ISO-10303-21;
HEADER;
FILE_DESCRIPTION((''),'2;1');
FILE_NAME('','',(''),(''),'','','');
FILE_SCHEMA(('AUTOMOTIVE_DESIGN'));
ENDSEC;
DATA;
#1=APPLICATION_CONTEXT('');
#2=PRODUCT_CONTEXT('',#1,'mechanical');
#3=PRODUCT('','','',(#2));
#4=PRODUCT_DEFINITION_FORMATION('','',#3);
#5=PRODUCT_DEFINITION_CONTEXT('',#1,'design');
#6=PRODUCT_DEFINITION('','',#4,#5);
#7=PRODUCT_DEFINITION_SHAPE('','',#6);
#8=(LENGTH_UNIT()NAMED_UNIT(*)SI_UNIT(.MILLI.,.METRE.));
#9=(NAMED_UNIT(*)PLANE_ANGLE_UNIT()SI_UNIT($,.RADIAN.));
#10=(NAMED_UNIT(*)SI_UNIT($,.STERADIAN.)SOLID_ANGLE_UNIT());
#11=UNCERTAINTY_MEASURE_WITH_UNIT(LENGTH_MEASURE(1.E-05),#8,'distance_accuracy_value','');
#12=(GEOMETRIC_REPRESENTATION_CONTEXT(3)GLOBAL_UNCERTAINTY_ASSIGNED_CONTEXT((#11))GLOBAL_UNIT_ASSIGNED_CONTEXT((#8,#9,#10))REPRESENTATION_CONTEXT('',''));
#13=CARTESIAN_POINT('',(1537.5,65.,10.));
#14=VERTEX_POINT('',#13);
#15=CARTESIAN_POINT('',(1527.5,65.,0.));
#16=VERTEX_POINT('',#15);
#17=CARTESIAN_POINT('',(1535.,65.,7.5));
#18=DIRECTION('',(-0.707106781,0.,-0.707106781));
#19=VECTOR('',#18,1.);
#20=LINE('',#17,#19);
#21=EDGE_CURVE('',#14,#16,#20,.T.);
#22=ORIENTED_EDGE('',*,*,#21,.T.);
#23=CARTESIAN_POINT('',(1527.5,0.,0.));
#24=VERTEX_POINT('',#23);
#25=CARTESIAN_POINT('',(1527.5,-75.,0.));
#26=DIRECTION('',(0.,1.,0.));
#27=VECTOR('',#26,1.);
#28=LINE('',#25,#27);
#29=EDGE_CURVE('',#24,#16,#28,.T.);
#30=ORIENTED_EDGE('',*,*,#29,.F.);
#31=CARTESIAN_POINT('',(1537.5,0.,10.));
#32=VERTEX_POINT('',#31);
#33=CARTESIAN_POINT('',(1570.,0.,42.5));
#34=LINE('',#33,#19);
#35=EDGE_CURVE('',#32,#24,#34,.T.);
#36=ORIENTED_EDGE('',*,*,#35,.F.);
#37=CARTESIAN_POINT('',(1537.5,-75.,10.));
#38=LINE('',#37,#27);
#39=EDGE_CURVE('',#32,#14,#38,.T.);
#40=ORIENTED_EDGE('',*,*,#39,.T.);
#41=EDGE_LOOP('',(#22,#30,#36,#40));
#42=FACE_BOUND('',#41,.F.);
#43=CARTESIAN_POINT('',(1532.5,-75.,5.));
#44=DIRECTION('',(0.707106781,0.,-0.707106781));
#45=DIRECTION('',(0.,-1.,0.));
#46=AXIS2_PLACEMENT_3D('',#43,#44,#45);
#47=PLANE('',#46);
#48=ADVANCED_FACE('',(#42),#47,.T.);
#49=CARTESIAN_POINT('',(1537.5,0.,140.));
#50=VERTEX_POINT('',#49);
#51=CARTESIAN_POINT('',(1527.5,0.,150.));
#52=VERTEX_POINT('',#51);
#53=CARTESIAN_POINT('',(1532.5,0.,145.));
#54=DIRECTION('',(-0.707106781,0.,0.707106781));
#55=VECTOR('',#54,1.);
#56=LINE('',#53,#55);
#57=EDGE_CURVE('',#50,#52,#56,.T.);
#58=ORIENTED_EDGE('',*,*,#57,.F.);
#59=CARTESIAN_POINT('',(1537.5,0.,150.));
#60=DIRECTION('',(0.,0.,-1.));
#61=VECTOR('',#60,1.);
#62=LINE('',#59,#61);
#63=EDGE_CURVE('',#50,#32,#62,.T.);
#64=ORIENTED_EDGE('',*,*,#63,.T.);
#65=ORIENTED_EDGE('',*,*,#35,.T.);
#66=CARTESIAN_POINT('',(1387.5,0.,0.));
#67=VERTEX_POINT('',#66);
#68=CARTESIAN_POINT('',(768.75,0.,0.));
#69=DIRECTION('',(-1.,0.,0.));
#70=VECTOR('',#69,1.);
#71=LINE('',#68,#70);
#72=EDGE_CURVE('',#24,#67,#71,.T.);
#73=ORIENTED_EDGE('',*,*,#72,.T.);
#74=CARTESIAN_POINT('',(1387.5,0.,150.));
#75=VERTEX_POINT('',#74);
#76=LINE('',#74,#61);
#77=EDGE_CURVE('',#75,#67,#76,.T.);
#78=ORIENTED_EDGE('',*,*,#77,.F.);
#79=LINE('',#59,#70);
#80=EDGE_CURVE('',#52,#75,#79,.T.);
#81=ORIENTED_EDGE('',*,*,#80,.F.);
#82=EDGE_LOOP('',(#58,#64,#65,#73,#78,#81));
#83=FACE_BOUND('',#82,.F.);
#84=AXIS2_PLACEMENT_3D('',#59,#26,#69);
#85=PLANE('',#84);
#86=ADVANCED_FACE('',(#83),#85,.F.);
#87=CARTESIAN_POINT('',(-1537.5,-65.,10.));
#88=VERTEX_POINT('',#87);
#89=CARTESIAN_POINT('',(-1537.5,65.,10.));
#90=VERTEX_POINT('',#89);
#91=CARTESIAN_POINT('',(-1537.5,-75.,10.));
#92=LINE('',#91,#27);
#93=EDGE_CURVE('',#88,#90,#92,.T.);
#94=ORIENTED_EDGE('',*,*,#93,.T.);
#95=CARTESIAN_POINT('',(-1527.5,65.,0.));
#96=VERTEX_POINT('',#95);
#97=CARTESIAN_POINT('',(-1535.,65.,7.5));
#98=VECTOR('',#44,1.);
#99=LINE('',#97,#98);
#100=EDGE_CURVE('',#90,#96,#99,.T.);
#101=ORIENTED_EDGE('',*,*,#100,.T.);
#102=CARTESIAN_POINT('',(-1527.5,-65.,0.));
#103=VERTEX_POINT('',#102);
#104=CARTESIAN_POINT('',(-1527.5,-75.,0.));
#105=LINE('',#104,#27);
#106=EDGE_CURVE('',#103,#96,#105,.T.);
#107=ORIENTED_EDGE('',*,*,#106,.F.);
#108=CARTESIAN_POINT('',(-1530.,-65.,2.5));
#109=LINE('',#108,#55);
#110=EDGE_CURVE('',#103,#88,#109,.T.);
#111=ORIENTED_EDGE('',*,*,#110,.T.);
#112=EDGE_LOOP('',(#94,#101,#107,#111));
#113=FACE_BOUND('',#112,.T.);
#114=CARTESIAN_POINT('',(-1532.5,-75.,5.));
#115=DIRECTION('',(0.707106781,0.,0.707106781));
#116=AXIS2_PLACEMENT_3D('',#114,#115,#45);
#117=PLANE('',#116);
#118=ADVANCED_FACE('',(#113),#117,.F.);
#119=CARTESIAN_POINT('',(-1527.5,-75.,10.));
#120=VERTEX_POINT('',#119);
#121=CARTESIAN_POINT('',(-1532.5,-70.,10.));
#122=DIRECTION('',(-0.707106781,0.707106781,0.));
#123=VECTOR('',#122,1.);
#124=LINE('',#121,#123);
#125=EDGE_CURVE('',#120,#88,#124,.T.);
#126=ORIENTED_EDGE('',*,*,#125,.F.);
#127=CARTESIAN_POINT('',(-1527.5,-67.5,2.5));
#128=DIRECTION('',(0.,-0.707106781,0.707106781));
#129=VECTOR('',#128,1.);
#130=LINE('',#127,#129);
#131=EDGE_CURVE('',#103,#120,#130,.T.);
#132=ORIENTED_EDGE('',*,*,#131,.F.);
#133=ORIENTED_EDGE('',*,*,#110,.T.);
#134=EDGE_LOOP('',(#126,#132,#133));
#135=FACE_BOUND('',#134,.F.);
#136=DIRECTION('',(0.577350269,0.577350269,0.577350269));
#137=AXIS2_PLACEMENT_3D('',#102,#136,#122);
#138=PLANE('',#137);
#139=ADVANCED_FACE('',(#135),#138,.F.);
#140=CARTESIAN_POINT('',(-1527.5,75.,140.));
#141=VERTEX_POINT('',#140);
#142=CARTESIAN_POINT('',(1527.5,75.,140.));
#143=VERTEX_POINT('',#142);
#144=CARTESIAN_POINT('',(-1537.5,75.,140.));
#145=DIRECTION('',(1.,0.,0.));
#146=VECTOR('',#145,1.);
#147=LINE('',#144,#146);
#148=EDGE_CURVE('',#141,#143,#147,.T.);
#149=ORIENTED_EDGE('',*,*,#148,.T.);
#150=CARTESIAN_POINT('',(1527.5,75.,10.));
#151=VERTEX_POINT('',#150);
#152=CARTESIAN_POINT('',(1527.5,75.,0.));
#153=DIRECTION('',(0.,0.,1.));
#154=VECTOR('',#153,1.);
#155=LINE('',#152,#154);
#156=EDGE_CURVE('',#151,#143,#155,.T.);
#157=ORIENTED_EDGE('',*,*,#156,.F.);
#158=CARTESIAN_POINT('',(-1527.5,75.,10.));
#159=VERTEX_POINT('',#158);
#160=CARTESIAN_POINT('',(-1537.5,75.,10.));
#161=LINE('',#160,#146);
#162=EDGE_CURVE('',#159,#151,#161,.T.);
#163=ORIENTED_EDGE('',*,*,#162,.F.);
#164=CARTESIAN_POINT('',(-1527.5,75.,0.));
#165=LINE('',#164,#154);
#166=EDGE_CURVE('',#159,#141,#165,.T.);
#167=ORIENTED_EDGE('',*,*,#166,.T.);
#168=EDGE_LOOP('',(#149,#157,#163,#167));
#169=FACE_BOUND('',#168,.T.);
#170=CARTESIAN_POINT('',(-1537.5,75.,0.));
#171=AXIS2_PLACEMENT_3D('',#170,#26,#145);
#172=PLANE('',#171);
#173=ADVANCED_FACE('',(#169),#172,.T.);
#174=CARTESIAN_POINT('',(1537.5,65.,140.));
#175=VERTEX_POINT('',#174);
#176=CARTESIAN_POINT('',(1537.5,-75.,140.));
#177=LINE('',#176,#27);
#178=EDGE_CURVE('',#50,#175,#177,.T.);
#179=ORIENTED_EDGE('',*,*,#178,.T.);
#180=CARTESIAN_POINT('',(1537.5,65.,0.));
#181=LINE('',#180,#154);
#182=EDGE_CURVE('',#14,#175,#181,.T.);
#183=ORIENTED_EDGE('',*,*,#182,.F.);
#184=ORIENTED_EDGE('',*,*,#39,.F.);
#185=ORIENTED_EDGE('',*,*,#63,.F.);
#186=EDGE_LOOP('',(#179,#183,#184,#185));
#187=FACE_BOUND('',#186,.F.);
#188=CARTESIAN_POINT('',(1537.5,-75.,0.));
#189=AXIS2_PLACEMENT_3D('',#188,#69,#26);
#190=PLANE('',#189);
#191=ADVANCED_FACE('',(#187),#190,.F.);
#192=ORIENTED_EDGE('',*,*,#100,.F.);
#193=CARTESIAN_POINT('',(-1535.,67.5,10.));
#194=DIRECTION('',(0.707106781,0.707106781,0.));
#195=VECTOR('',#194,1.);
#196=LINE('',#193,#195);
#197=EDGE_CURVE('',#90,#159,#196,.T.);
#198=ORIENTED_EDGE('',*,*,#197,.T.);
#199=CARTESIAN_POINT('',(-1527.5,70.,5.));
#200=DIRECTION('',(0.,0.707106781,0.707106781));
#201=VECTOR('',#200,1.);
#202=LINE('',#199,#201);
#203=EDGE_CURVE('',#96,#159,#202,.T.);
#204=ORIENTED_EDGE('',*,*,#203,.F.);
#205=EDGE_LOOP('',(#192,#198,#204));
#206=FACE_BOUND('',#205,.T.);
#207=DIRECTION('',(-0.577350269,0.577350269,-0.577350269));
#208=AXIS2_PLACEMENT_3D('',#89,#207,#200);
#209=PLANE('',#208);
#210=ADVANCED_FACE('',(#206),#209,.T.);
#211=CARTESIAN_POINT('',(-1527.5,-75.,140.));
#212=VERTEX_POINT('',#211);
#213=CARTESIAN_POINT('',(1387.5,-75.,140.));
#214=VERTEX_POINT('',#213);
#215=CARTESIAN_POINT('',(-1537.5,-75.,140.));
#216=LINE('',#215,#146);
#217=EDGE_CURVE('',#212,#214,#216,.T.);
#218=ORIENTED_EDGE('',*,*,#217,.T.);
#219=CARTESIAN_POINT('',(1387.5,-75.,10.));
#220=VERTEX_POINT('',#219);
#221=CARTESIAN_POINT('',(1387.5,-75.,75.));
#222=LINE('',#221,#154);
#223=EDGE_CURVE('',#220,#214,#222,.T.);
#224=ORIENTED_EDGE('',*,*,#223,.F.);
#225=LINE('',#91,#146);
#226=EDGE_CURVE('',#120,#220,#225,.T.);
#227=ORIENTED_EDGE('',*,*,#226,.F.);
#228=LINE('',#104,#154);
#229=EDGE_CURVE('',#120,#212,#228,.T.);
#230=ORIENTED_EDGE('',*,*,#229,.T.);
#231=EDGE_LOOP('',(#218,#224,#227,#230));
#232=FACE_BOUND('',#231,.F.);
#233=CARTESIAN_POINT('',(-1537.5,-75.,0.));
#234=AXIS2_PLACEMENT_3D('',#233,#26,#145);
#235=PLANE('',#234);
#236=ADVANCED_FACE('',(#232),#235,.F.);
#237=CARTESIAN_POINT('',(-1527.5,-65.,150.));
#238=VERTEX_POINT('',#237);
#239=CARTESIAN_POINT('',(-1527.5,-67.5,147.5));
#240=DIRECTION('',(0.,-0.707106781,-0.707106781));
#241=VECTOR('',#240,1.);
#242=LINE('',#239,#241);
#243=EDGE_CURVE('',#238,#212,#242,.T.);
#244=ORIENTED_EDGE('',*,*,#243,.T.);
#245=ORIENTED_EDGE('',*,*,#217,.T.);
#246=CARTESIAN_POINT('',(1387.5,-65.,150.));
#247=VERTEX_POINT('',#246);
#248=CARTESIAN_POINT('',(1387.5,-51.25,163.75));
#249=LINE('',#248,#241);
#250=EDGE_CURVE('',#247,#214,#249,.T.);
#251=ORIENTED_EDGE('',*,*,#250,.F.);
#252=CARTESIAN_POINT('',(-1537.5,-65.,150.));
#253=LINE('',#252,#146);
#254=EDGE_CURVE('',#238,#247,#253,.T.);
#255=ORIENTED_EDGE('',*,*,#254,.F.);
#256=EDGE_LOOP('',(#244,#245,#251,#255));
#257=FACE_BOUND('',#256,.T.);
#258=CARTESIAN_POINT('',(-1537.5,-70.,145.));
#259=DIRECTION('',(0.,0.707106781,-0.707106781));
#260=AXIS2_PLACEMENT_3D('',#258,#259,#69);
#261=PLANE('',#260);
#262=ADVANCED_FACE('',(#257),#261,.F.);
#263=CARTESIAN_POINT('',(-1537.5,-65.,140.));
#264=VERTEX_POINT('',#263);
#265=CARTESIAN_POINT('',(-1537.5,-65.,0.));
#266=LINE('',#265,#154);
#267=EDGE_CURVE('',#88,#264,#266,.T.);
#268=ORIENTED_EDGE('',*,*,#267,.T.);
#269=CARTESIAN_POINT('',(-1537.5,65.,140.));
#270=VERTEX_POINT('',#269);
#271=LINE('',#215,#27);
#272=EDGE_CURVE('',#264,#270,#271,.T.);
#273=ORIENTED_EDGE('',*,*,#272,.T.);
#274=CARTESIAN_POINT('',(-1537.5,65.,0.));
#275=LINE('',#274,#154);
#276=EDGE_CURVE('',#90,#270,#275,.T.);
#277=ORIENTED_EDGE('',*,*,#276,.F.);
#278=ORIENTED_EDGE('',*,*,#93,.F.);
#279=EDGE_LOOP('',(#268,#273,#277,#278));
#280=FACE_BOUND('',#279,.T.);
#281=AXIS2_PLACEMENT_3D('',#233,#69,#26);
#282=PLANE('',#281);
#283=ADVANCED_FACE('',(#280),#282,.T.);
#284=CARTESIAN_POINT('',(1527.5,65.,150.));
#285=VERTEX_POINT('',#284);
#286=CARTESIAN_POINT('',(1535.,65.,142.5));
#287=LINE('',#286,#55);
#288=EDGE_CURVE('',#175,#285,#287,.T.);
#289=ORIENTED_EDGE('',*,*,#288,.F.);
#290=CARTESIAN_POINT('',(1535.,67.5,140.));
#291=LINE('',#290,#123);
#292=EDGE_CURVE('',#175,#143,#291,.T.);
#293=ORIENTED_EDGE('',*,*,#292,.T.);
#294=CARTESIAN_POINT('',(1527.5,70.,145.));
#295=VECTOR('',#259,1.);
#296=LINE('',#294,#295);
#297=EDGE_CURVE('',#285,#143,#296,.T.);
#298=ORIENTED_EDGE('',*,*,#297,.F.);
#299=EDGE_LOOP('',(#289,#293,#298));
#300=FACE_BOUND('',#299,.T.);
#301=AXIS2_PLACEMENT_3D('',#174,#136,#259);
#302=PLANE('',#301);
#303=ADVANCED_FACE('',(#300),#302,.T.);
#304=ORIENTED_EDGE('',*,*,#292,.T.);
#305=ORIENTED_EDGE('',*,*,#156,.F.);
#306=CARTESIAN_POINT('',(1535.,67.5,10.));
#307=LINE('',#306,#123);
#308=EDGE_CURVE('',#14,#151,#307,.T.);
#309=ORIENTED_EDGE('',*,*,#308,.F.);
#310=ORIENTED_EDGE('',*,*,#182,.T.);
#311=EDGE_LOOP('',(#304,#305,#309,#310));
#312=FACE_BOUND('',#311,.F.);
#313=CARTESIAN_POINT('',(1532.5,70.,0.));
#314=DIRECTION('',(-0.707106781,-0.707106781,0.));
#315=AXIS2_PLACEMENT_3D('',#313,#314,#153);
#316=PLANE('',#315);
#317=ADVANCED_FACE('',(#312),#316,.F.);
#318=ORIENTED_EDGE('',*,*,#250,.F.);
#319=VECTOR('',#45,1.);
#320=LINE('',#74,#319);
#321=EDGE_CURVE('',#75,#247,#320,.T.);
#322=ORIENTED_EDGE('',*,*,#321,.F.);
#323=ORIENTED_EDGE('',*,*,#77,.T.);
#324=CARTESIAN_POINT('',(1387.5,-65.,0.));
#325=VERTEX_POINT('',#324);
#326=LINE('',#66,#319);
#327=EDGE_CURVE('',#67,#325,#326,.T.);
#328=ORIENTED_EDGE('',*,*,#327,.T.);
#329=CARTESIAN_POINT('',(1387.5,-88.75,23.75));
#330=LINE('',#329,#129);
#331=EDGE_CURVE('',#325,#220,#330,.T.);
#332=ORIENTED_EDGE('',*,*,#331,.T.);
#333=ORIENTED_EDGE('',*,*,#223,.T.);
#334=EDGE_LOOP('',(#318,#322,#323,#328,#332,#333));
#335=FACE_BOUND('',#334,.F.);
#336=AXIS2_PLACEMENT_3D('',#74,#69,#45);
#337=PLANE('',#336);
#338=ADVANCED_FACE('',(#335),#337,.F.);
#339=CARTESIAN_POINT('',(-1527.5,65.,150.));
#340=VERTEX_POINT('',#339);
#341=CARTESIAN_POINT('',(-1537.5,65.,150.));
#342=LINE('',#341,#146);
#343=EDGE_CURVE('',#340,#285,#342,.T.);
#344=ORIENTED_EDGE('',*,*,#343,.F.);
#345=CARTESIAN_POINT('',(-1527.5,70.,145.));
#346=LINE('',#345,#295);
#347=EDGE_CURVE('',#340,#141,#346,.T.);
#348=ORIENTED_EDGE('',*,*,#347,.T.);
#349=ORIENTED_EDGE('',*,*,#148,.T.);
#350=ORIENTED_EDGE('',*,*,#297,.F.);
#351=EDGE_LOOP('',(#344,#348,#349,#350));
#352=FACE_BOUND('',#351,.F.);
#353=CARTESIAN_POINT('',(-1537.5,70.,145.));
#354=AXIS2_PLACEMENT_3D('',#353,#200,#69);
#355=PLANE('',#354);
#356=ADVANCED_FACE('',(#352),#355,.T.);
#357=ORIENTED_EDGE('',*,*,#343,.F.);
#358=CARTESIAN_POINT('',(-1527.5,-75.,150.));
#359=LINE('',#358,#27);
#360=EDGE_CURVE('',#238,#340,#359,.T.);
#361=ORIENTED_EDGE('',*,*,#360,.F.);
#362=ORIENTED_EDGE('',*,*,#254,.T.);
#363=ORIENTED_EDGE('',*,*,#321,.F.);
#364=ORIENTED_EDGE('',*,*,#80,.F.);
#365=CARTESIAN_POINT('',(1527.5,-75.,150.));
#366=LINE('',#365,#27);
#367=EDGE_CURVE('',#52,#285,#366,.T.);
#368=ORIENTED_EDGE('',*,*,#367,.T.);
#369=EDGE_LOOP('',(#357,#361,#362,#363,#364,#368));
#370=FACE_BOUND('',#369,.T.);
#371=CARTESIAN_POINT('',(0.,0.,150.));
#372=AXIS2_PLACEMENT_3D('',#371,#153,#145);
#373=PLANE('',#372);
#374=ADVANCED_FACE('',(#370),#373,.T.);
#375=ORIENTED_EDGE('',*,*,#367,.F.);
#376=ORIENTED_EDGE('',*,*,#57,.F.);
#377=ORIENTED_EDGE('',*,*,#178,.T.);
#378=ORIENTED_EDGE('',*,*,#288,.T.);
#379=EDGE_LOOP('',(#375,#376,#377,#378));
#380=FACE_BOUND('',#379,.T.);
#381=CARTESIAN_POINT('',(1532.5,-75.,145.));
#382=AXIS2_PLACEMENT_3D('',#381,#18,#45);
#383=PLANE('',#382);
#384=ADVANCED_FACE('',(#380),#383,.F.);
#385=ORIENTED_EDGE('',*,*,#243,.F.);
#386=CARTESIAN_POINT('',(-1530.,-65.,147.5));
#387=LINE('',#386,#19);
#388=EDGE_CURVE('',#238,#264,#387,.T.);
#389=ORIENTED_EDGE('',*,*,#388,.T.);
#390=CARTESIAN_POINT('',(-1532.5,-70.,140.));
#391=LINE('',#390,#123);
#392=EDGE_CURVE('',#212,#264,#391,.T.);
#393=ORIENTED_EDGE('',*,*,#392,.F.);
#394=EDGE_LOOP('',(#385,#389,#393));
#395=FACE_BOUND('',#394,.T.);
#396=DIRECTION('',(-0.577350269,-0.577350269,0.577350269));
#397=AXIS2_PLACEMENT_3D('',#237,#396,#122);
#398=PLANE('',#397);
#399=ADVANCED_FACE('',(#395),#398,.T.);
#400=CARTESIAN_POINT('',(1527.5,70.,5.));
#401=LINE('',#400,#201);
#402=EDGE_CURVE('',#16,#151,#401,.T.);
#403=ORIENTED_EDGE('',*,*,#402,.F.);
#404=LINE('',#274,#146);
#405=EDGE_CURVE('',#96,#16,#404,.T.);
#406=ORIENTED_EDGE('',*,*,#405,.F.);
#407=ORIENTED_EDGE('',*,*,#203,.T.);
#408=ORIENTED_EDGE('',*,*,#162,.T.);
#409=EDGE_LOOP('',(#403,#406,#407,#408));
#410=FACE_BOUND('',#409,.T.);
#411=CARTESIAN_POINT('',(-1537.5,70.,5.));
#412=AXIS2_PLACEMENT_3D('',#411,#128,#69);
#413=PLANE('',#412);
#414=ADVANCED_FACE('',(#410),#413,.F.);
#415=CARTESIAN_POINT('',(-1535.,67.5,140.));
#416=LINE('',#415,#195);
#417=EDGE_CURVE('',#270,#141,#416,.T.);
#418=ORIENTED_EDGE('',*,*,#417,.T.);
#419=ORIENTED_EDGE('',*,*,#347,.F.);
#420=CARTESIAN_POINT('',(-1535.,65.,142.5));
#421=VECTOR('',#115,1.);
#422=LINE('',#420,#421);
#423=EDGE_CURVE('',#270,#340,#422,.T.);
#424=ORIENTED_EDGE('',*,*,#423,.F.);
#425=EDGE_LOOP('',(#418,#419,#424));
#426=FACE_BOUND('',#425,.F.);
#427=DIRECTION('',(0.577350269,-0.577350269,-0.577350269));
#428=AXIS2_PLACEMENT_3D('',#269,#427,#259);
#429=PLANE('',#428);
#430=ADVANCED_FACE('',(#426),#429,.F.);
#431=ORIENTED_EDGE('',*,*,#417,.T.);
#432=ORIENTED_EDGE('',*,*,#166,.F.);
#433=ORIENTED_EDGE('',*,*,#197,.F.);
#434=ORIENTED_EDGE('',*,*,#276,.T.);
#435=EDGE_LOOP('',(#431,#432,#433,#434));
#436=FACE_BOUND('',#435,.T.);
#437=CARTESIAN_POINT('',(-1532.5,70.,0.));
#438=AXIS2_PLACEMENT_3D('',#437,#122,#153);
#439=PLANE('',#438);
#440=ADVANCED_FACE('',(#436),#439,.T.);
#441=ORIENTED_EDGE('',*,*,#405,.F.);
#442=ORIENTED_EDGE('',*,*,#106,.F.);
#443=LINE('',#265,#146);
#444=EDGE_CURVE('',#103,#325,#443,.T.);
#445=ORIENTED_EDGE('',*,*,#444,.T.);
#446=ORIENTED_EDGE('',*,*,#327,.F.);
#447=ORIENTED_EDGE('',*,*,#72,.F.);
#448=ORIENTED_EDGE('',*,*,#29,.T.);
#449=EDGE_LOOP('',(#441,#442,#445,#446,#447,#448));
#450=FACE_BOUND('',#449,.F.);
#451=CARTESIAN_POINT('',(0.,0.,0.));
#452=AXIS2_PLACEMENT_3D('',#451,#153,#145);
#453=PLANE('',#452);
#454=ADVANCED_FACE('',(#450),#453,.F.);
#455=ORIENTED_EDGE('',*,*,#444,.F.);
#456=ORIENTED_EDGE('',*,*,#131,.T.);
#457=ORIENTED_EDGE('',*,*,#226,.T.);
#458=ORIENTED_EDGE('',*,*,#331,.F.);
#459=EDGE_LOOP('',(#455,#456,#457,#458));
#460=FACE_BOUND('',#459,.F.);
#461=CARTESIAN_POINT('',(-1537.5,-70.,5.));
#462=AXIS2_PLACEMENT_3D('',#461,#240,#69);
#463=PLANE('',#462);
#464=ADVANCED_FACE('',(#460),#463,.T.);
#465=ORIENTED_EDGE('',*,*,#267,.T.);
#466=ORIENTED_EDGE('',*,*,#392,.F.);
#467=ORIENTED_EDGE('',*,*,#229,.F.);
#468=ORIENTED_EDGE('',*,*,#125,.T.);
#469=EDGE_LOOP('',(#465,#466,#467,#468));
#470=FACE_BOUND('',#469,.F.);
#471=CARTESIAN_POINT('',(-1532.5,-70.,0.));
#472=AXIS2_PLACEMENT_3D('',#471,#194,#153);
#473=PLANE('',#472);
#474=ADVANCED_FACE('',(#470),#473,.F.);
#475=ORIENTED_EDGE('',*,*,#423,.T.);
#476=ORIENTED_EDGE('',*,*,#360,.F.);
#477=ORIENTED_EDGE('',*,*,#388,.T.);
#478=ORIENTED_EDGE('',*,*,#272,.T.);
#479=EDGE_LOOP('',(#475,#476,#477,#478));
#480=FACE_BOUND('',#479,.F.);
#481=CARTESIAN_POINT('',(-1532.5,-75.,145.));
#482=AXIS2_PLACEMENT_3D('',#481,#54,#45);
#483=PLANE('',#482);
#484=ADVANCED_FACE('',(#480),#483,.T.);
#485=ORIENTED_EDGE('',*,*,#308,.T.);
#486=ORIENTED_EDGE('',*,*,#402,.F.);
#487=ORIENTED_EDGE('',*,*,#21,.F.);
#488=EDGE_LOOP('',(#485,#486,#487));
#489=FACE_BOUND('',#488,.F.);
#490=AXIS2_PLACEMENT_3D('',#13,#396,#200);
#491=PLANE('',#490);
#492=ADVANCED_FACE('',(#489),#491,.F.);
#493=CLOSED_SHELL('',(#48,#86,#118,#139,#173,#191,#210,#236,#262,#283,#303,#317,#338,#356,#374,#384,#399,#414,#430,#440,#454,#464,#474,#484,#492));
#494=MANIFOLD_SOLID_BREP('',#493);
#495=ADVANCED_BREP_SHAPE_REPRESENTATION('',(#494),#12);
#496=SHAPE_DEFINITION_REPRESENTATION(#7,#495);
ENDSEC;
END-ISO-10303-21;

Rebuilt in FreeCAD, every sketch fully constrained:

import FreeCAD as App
import Part
import Sketcher

V = App.Vector


def add_polygon(sketch, points):
    """Adds a closed chain of lines whose ends are joined by coincident constraints."""
    first, n = sketch.GeometryCount, len(points)
    for a, b in zip(points, points[1:] + points[:1]):
        sketch.addGeometry(Part.LineSegment(App.Vector(*a, 0), App.Vector(*b, 0)), False)
    for i in range(n):
        sketch.addConstraint(Sketcher.Constraint("Coincident", first + i, 2, first + (i + 1) % n, 1))

doc = App.newDocument("Part")
params = doc.addObject("Spreadsheet::Sheet", "Params")
for row, (alias, value) in enumerate([
    ("sketch1_width", "3075 mm"),
    ("sketch1_height", "150 mm"),
    ("pad1_length", "150 mm"),
    ("chamfer_size", "10 mm"),
    ("sketch2_width", "150 mm"),
], start=1):
    params.set(f"A{row}", alias)
    params.set(f"B{row}", "=" + value)
    params.setAlias(f"B{row}", alias)

body = doc.addObject("PartDesign::Body", "Body")

sketch1 = doc.addObject("Sketcher::SketchObject", "Sketch")
body.addObject(sketch1)
sketch1.AttachmentSupport = (doc.XY_Plane, [""])
sketch1.MapMode = "FlatFace"
add_polygon(sketch1, [(-1538, 75), (-1538, -75), (1538, -75), (1538, 75)])
sketch1.addConstraint(Sketcher.Constraint("Vertical", 0))
sketch1.addConstraint(Sketcher.Constraint("Horizontal", 1))
sketch1.addConstraint(Sketcher.Constraint("Vertical", 2))
sketch1.addConstraint(Sketcher.Constraint("Horizontal", 3))
sketch1.addConstraint(Sketcher.Constraint("Symmetric", 0, 2, 2, 2, -1, 1))
sketch1.addConstraint(Sketcher.Constraint("DistanceX", 1, 1, 1, 2, 3075.0))
sketch1.addConstraint(Sketcher.Constraint("DistanceY", 0, 2, 0, 1, 150.0))
sketch1.setExpression("Constraints[9]", "Params.sketch1_width")
sketch1.setExpression("Constraints[10]", "Params.sketch1_height")
pad1 = doc.addObject("PartDesign::Pad", "Pad")
body.addObject(pad1)
pad1.Profile = sketch1
pad1.setExpression("Length", "Params.pad1_length")
doc.recompute()

chamfer = doc.addObject("PartDesign::Chamfer", "Chamfer")
body.addObject(chamfer)
chamfer.Base = (pad1, ["Edge1"])
chamfer.UseAllEdges = True
chamfer.setExpression("Size", "Params.chamfer_size")

sketch2 = doc.addObject("Sketcher::SketchObject", "Sketch001")
body.addObject(sketch2)
sketch2.AttachmentSupport = (doc.XY_Plane, [""])
sketch2.MapMode = "FlatFace"
sketch2.AttachmentOffset = App.Placement(V(0, 0, 150), App.Rotation())
add_polygon(sketch2, [(1538, 0), (1388, 0), (1388, -80), (1538, -80)])
sketch2.addConstraint(Sketcher.Constraint("Horizontal", 0))
sketch2.addConstraint(Sketcher.Constraint("Vertical", 1))
sketch2.addConstraint(Sketcher.Constraint("Horizontal", 2))
sketch2.addConstraint(Sketcher.Constraint("Vertical", 3))
sketch2.addConstraint(Sketcher.Constraint("PointOnObject", 0, 2, -1))
sketch2.addConstraint(Sketcher.Constraint("DistanceX", 0, 2, 0, 1, 150.0))
sketch2.addConstraint(Sketcher.Constraint("DistanceX", -1, 1, 0, 2, 1387.5))
sketch2.addConstraint(Sketcher.Constraint("DistanceY", 1, 2, 1, 1, 79.808988))
sketch2.setExpression("Constraints[9]", "Params.sketch2_width")
pocket1 = doc.addObject("PartDesign::Pocket", "Pocket")
body.addObject(pocket1)
pocket1.Profile = sketch2
pocket1.Type = "ThroughAll"

doc.recompute()
